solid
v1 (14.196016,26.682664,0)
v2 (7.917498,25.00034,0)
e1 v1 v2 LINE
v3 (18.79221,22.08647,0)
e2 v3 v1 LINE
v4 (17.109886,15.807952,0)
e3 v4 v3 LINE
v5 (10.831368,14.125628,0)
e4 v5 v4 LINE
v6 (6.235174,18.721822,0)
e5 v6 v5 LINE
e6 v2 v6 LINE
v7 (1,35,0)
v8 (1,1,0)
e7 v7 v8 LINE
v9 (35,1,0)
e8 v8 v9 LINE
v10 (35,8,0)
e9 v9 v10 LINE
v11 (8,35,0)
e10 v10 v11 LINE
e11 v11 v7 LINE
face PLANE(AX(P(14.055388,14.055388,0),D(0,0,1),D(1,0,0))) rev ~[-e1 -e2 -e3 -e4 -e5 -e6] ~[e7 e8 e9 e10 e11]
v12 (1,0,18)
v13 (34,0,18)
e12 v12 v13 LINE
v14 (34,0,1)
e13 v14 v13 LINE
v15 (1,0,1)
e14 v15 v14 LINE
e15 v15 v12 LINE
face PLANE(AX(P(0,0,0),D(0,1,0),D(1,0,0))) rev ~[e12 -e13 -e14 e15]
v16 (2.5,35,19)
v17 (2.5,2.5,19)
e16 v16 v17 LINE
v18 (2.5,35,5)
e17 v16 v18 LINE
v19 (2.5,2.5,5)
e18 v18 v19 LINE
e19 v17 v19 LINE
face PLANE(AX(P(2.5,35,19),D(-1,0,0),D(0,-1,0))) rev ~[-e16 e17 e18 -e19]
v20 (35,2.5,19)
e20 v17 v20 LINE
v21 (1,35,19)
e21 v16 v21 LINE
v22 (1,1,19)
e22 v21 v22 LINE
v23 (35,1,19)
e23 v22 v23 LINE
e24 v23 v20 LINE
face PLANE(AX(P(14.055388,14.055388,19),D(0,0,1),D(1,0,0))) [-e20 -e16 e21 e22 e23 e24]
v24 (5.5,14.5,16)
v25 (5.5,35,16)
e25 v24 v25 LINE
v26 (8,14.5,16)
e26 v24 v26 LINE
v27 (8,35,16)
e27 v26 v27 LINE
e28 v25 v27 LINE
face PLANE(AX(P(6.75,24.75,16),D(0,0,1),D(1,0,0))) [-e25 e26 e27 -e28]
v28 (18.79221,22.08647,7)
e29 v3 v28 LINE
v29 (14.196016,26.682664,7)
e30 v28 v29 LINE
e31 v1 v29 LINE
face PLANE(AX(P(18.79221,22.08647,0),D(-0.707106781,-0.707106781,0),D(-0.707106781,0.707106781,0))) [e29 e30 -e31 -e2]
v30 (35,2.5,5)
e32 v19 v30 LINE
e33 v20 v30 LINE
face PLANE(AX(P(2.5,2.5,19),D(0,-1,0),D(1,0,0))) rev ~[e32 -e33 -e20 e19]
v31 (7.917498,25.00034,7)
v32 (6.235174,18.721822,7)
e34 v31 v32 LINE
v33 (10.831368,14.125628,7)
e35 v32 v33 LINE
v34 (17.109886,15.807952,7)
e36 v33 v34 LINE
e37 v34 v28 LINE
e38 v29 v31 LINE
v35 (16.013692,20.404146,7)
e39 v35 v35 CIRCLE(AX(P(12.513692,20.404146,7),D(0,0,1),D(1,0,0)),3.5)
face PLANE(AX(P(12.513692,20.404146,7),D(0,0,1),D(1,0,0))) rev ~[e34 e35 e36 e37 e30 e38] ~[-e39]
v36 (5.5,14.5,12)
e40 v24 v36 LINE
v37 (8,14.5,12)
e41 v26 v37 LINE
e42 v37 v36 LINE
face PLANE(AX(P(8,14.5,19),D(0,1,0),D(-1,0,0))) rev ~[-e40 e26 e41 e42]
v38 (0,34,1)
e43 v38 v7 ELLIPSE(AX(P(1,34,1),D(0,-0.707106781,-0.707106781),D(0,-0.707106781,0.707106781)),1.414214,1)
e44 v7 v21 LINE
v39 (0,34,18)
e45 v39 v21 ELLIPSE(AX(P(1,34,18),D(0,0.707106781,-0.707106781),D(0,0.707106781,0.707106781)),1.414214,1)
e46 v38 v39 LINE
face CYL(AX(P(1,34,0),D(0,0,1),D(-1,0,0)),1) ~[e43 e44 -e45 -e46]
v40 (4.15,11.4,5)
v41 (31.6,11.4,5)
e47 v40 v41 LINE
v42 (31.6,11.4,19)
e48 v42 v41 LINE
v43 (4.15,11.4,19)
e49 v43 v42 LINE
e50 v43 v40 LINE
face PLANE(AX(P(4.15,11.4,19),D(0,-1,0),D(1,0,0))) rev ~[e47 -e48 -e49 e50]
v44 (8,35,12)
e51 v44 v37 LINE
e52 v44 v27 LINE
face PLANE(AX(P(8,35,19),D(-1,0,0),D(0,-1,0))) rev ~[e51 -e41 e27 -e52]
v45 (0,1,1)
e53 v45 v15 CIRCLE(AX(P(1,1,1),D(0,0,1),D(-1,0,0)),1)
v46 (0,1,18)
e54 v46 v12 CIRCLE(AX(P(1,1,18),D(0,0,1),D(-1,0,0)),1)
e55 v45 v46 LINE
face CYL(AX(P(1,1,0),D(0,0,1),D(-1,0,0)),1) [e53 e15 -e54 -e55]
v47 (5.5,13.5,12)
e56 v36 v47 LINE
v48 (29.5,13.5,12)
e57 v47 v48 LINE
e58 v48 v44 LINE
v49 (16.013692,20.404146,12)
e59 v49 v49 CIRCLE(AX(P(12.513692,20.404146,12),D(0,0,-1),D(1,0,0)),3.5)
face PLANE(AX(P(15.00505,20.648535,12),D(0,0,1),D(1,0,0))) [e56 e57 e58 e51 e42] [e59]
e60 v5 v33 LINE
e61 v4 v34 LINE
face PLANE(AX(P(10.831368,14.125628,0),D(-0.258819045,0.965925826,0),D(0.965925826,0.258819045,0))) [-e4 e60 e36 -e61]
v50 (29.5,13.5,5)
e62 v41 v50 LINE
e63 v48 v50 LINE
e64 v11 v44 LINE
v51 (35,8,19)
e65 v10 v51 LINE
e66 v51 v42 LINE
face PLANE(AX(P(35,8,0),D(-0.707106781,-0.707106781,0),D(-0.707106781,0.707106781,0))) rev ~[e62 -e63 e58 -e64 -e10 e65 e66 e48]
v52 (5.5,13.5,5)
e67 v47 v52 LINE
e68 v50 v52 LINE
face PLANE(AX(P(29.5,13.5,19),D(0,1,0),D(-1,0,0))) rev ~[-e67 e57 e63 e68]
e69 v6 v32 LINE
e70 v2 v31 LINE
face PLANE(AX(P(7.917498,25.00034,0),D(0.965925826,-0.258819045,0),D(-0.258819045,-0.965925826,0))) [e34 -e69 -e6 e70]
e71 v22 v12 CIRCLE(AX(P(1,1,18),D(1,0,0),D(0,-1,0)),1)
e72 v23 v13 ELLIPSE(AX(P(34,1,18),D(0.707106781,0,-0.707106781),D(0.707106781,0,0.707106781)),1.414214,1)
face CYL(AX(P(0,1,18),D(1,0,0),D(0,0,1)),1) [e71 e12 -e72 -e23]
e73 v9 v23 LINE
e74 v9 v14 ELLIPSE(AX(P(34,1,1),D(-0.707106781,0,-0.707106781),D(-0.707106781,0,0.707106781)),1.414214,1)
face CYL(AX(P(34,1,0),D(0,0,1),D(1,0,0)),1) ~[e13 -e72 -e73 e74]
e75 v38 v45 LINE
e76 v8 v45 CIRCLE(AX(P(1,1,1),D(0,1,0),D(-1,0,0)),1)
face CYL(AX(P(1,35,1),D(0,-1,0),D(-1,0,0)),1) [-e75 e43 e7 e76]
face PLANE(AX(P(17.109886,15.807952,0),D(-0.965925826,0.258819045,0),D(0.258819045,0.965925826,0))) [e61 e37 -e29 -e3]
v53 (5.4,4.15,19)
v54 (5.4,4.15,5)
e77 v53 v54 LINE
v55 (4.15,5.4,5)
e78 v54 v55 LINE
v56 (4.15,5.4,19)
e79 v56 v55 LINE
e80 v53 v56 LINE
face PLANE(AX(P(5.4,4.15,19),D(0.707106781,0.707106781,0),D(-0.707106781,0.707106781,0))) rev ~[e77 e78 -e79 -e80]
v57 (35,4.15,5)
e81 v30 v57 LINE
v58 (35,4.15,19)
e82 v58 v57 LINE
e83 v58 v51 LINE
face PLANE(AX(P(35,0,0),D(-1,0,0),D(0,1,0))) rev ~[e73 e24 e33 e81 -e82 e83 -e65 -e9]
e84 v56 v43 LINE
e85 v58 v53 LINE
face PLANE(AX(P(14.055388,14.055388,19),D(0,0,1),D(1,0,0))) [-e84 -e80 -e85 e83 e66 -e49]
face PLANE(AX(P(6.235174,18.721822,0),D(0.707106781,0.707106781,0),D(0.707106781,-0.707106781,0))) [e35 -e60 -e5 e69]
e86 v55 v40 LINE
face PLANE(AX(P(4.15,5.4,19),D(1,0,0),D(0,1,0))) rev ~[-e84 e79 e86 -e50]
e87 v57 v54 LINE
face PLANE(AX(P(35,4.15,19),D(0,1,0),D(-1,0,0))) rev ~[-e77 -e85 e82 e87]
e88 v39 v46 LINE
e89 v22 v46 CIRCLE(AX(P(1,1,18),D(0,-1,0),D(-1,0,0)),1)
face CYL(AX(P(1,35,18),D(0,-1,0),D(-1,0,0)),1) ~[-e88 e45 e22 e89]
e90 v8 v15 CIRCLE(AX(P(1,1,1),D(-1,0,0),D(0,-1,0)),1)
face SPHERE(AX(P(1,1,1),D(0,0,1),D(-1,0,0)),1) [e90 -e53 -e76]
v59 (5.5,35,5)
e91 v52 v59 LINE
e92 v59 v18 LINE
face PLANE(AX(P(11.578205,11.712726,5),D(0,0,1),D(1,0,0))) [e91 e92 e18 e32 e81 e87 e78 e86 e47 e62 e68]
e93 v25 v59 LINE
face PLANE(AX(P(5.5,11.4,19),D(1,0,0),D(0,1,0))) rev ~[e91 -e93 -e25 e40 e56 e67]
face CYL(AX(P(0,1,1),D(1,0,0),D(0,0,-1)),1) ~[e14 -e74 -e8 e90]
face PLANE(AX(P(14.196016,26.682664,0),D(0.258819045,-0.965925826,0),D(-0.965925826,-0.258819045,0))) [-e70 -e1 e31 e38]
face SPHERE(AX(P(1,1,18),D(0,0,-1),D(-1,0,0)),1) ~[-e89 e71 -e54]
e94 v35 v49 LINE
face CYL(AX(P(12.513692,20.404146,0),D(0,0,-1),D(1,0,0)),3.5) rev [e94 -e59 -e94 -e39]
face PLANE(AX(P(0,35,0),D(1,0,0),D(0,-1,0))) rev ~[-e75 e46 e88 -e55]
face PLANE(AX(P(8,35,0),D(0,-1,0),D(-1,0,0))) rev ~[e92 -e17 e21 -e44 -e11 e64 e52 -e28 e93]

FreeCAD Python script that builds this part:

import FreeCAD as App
import Part
import Sketcher
from FreeCAD import Vector
Q = App.Units.Quantity


def edges_at(feature, points):
    """Names of the edges that pass closest to the given points."""
    edges = feature.Shape.Edges
    near = lambda p: min(range(len(edges)), key=lambda i: edges[i].distToShape(Part.Vertex(*p))[0])
    return sorted({f"Edge{near(p) + 1}" for p in points})


def add_polygon(sketch, points):
    """Adds a closed chain of lines whose ends are joined by coincident constraints."""
    first, n = sketch.GeometryCount, len(points)
    for a, b in zip(points, points[1:] + points[:1]):
        sketch.addGeometry(Part.LineSegment(App.Vector(*a, 0), App.Vector(*b, 0)), False)
    for i in range(n):
        sketch.addConstraint(Sketcher.Constraint("Coincident", first + i, 2, first + (i + 1) % n, 1))

doc = App.newDocument("Part")
body = doc.addObject("PartDesign::Body", "Body")

# Sketch on XY plane
sketch1 = body.newObject("Sketcher::SketchObject", "Sketch")
sketch1.AttachmentSupport = (doc.getObject("XY_Plane"), [""])
sketch1.MapMode = "FlatFace"
add_polygon(sketch1, [(0, 35), (0, 0), (35, 0), (35, 8), (8, 35)])  # lines 0-4
sketch1.addConstraint([
    Sketcher.Constraint("Vertical", 0),
    Sketcher.Constraint("Horizontal", 1),
    Sketcher.Constraint("Vertical", 2),
    Sketcher.Constraint("Horizontal", 4),
    Sketcher.Constraint("Coincident", 0, 2, -1, 1),
    Sketcher.Constraint("Equal", 1, 0),
    Sketcher.Constraint("Equal", 4, 2),
    Sketcher.Constraint("DistanceX", 1, 1, 1, 2, Q("35 mm")),
    Sketcher.Constraint("DistanceX", 4, 2, 4, 1, Q("8 mm")),
])
pad1 = body.newObject("PartDesign::Pad", "Pad")
pad1.Profile = sketch1
pad1.Length = 19

# Sketch on XY plane
sketch2 = body.newObject("Sketcher::SketchObject", "Sketch001")
sketch2.AttachmentSupport = (doc.getObject("XY_Plane"), [""])
sketch2.MapMode = "FlatFace"
sketch2.AttachmentOffset = App.Placement(Vector(0, 0, 19), App.Rotation())
add_polygon(sketch2, [(2.5, 2.5), (35, 2.5), (35, 4.2), (5.4, 4.2), (4.2, 5.4), (4.2, 11.4), (5.5, 11.4), (5.5, 35), (2.5, 35)])  # lines 0-8
sketch2.addConstraint([
    Sketcher.Constraint("Horizontal", 0),
    Sketcher.Constraint("Vertical", 1),
    Sketcher.Constraint("Horizontal", 2),
    Sketcher.Constraint("Vertical", 4),
    Sketcher.Constraint("Horizontal", 5),
    Sketcher.Constraint("Vertical", 6),
    Sketcher.Constraint("Horizontal", 7),
    Sketcher.Constraint("Vertical", 8),
    Sketcher.Constraint("Equal", 0, 8),
    Sketcher.Constraint("DistanceX", 7, 2, 7, 1, Q("3 mm")),
    Sketcher.Constraint("DistanceY", 4, 1, 4, 2, Q("6 mm")),
    Sketcher.Constraint("Angle", 3, Q("135 deg")),
    Sketcher.Constraint("DistanceX", 0, 1, 0, 2, Q("32.5 mm")),
    Sketcher.Constraint("DistanceX", 2, 2, 2, 1, Q("29.6 mm")),
    Sketcher.Constraint("DistanceY", 6, 1, 6, 2, Q("23.6 mm")),
    Sketcher.Constraint("DistanceX", -1, 1, 0, 2, Q("35 mm")),
    Sketcher.Constraint("DistanceY", -1, 1, 6, 2, Q("35 mm")),
    Sketcher.Constraint("DistanceX", 5, 1, 5, 2, Q("1.35 mm")),
])
pocket1 = body.newObject("PartDesign::Pocket", "Pocket")
pocket1.Profile = sketch2
pocket1.Length = 14

# Sketch on XY plane
sketch3 = body.newObject("Sketcher::SketchObject", "Sketch002")
sketch3.AttachmentSupport = (doc.getObject("XY_Plane"), [""])
sketch3.MapMode = "FlatFace"
add_polygon(sketch3, [(18.8, 22.1), (14.2, 26.7), (7.9, 25), (6.2, 18.7), (10.8, 14.1), (17.1, 15.8)])  # lines 0-5
sketch3.addGeometry(Part.Circle(Vector(12.5, 20.4, 0), Vector(0, 0, 1), 3.5), False)  # 6
sketch3.addConstraint([
    Sketcher.Constraint("Parallel", 0, 3),
    Sketcher.Constraint("Parallel", 1, 4),
    Sketcher.Constraint("Parallel", 2, 5),
    Sketcher.Constraint("Equal", 0, 1),
    Sketcher.Constraint("Equal", 1, 2),
    Sketcher.Constraint("Equal", 2, 3),
    Sketcher.Constraint("Diameter", 6, Q("7 mm")),
    Sketcher.Constraint("Angle", 0, Q("135 deg")),
    Sketcher.Constraint("Angle", 1, Q("-165 deg")),
    Sketcher.Constraint("Angle", 2, Q("-105 deg")),
    Sketcher.Constraint("Distance", 0, Q("6.5 mm")),
    Sketcher.Constraint("DistanceX", -1, 1, 6, 3, Q("12.513692 mm")),
    Sketcher.Constraint("DistanceY", -1, 1, 1, 2, Q("25.00034 mm")),
    Sketcher.Constraint("DistanceX", -1, 1, 5, 2, Q("18.79221 mm")),
    Sketcher.Constraint("DistanceY", -1, 1, 6, 3, Q("20.404146 mm")),
])
pocket2 = body.newObject("PartDesign::Pocket", "Pocket001")
pocket2.Profile = sketch3
pocket2.Length = 7
pocket2.Reversed = True

# Sketch on XY plane
sketch4 = body.newObject("Sketcher::SketchObject", "Sketch003")
sketch4.AttachmentSupport = (doc.getObject("XY_Plane"), [""])
sketch4.MapMode = "FlatFace"
sketch4.AttachmentOffset = App.Placement(Vector(0, 0, 19), App.Rotation())
add_polygon(sketch4, [(8, 14.5), (5.5, 14.5), (5.5, 13.5), (29.5, 13.5), (8, 35)])  # lines 0-4
sketch4.addConstraint([
    Sketcher.Constraint("Horizontal", 0),
    Sketcher.Constraint("Vertical", 1),
    Sketcher.Constraint("Horizontal", 2),
    Sketcher.Constraint("Vertical", 4),
    Sketcher.Constraint("DistanceX", 2, 1, 2, 2, Q("24 mm")),
    Sketcher.Constraint("DistanceY", 1, 2, 1, 1, Q("1 mm")),
    Sketcher.Constraint("Angle", 3, Q("135 deg")),
    Sketcher.Constraint("DistanceX", 0, 2, 0, 1, Q("2.5 mm")),
    Sketcher.Constraint("DistanceX", -1, 1, 3, 2, Q("8 mm")),
    Sketcher.Constraint("DistanceY", -1, 1, 3, 2, Q("35 mm")),
])
pocket3 = body.newObject("PartDesign::Pocket", "Pocket002")
pocket3.Profile = sketch4
pocket3.Length = 7

# Sketch on XY plane
sketch5 = body.newObject("Sketcher::SketchObject", "Sketch004")
sketch5.AttachmentSupport = (doc.getObject("XY_Plane"), [""])
sketch5.MapMode = "FlatFace"
sketch5.addGeometry(Part.Circle(Vector(12.5, 20.4, 0), Vector(0, 0, 1), 3.5), False)
sketch5.addConstraint([
    Sketcher.Constraint("Diameter", 0, Q("7 mm")),
    Sketcher.Constraint("DistanceX", -1, 1, 0, 3, Q("12.513692 mm")),
    Sketcher.Constraint("DistanceY", -1, 1, 0, 3, Q("20.404146 mm")),
])
pocket4 = body.newObject("PartDesign::Pocket", "Pocket003")
pocket4.Profile = sketch5
pocket4.Length = 25
pocket4.Reversed = True

# Sketch on XY plane
sketch6 = body.newObject("Sketcher::SketchObject", "Sketch005")
sketch6.AttachmentSupport = (doc.getObject("XY_Plane"), [""])
sketch6.MapMode = "FlatFace"
sketch6.AttachmentOffset = App.Placement(Vector(0, 0, 19), App.Rotation())
add_polygon(sketch6, [(2.5, 2.5), (35, 2.5), (35, 4.2), (5.4, 4.2), (4.2, 5.4), (4.2, 11.4), (31.6, 11.4), (29.5, 13.5), (5.5, 13.5), (5.5, 35), (2.5, 35)])  # lines 0-10
sketch6.addConstraint([
    Sketcher.Constraint("Horizontal", 0),
    Sketcher.Constraint("Vertical", 1),
    Sketcher.Constraint("Horizontal", 2),
    Sketcher.Constraint("Vertical", 4),
    Sketcher.Constraint("Horizontal", 5),
    Sketcher.Constraint("Horizontal", 7),
    Sketcher.Constraint("Vertical", 8),
    Sketcher.Constraint("Horizontal", 9),
    Sketcher.Constraint("Vertical", 10),
    Sketcher.Constraint("Parallel", 3, 6),
    Sketcher.Constraint("Equal", 0, 10),
    Sketcher.Constraint("DistanceX", 7, 2, 7, 1, Q("24 mm")),
    Sketcher.Constraint("DistanceX", 9, 2, 9, 1, Q("3 mm")),
    Sketcher.Constraint("DistanceY", 4, 1, 4, 2, Q("6 mm")),
    Sketcher.Constraint("Angle", 3, Q("135 deg")),
    Sketcher.Constraint("DistanceX", 0, 1, 0, 2, Q("32.5 mm")),
    Sketcher.Constraint("DistanceX", 2, 2, 2, 1, Q("29.6 mm")),
    Sketcher.Constraint("DistanceY", 8, 1, 8, 2, Q("21.5 mm")),
    Sketcher.Constraint("DistanceX", -1, 1, 0, 2, Q("35 mm")),
    Sketcher.Constraint("DistanceY", -1, 1, 8, 2, Q("35 mm")),
    Sketcher.Constraint("DistanceX", 5, 1, 5, 2, Q("27.45 mm")),
    Sketcher.Constraint("DistanceY", -1, 1, 3, 2, Q("5.4 mm")),
])
pocket5 = body.newObject("PartDesign::Pocket", "Pocket004")
pocket5.Profile = sketch6
pocket5.Length = 14
doc.recompute()

fillet = body.newObject("PartDesign::Fillet", "Fillet")
fillet.Base = (pocket5, edges_at(pocket5, [
    (0, 35, 9.5),
    (0, 0, 9.5),
    (0, 17.5, 0),
    (0, 17.5, 19),
    (35, 0, 9.5),
    (17.5, 0, 0),
    (17.5, 0, 19),
]))
fillet.Radius = 1

# Sketch on XY plane
sketch7 = body.newObject("Sketcher::SketchObject", "Sketch006")
sketch7.AttachmentSupport = (doc.getObject("XY_Plane"), [""])
sketch7.MapMode = "FlatFace"
sketch7.AttachmentOffset = App.Placement(Vector(0, 0, 19), App.Rotation())
add_polygon(sketch7, [(5.5, 35), (5.5, 14.5), (8, 14.5), (8, 35)])  # lines 0-3
sketch7.addConstraint([
    Sketcher.Constraint("Vertical", 0),
    Sketcher.Constraint("Horizontal", 1),
    Sketcher.Constraint("Vertical", 2),
    Sketcher.Constraint("Horizontal", 3),
    Sketcher.Constraint("DistanceX", 1, 1, 1, 2, Q("2.5 mm")),
    Sketcher.Constraint("DistanceY", 0, 2, 0, 1, Q("20.5 mm")),
    Sketcher.Constraint("DistanceX", -1, 1, 1, 2, Q("8 mm")),
    Sketcher.Constraint("DistanceY", -1, 1, 2, 2, Q("35 mm")),
])
pocket6 = body.newObject("PartDesign::Pocket", "Pocket005")
pocket6.Profile = sketch7
pocket6.Length = 3

doc.recompute()
